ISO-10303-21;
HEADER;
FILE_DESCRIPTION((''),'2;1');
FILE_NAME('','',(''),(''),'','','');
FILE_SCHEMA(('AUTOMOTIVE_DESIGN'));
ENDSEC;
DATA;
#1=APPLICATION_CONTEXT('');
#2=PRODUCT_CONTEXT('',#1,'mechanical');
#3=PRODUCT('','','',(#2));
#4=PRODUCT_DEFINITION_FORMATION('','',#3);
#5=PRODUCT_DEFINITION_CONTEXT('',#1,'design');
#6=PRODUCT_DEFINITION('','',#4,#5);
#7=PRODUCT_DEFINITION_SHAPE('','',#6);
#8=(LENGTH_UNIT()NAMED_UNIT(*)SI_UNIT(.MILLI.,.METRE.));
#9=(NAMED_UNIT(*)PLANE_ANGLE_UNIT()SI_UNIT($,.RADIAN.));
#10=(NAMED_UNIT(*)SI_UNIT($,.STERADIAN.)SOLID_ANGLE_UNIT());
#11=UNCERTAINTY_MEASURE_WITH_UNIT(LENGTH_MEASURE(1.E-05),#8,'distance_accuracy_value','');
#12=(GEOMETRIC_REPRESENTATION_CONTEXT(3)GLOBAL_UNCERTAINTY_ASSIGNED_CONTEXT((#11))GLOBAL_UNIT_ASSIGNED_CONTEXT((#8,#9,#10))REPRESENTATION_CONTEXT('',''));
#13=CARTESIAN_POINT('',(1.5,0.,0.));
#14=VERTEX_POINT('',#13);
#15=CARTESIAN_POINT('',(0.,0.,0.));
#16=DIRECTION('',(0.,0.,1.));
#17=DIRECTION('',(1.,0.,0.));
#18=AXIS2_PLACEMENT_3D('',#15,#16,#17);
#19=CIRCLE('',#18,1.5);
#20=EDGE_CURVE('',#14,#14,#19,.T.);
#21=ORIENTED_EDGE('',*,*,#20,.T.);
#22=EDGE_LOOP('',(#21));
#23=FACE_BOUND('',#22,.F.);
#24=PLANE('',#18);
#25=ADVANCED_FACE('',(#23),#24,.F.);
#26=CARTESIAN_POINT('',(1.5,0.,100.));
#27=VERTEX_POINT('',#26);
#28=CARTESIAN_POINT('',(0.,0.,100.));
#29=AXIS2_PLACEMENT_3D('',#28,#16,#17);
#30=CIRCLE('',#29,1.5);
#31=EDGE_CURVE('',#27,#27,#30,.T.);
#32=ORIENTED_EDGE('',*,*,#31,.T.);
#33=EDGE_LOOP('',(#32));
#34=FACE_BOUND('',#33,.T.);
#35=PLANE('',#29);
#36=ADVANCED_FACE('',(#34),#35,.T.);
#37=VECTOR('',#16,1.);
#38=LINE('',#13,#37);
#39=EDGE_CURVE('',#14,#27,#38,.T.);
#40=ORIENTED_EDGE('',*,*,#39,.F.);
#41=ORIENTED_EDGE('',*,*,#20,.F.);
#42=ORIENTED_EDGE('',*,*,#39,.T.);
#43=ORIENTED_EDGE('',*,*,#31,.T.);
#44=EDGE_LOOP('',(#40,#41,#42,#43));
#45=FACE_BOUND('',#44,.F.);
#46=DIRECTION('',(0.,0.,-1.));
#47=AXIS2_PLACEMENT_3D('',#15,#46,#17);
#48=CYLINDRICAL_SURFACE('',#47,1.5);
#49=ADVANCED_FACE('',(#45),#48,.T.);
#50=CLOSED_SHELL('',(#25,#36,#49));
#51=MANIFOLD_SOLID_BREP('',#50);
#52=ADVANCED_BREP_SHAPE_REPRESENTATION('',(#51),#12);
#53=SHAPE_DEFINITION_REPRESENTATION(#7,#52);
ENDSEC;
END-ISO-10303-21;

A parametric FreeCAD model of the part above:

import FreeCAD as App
import Part
import Sketcher

doc = App.newDocument("Part")
params = doc.addObject("Spreadsheet::Sheet", "Params")
for row, (alias, value) in enumerate([
    ("sketch1_diameter", "3 mm"),
    ("pad1_length", "100 mm"),
], start=1):
    params.set(f"A{row}", alias)
    params.set(f"B{row}", "=" + value)
    params.setAlias(f"B{row}", alias)

body = doc.addObject("PartDesign::Body", "Body")

sketch1 = body.newObject("Sketcher::SketchObject", "Sketch")
sketch1.AttachmentSupport = (doc.getObject("XY_Plane"), [""])
sketch1.MapMode = "FlatFace"
sketch1.addGeometry(Part.Circle(App.Vector(0, 0, 0), App.Vector(0, 0, 1), 1.5), False)
sketch1.addConstraint([
    Sketcher.Constraint("Coincident", 0, 3, -1, 1),
    Sketcher.Constraint("Diameter", 0, 3.0),
])
sketch1.setExpression("Constraints[1]", "Params.sketch1_diameter")
pad1 = body.newObject("PartDesign::Pad", "Pad")
pad1.Profile = sketch1
pad1.setExpression("Length", "Params.pad1_length")

doc.recompute()
